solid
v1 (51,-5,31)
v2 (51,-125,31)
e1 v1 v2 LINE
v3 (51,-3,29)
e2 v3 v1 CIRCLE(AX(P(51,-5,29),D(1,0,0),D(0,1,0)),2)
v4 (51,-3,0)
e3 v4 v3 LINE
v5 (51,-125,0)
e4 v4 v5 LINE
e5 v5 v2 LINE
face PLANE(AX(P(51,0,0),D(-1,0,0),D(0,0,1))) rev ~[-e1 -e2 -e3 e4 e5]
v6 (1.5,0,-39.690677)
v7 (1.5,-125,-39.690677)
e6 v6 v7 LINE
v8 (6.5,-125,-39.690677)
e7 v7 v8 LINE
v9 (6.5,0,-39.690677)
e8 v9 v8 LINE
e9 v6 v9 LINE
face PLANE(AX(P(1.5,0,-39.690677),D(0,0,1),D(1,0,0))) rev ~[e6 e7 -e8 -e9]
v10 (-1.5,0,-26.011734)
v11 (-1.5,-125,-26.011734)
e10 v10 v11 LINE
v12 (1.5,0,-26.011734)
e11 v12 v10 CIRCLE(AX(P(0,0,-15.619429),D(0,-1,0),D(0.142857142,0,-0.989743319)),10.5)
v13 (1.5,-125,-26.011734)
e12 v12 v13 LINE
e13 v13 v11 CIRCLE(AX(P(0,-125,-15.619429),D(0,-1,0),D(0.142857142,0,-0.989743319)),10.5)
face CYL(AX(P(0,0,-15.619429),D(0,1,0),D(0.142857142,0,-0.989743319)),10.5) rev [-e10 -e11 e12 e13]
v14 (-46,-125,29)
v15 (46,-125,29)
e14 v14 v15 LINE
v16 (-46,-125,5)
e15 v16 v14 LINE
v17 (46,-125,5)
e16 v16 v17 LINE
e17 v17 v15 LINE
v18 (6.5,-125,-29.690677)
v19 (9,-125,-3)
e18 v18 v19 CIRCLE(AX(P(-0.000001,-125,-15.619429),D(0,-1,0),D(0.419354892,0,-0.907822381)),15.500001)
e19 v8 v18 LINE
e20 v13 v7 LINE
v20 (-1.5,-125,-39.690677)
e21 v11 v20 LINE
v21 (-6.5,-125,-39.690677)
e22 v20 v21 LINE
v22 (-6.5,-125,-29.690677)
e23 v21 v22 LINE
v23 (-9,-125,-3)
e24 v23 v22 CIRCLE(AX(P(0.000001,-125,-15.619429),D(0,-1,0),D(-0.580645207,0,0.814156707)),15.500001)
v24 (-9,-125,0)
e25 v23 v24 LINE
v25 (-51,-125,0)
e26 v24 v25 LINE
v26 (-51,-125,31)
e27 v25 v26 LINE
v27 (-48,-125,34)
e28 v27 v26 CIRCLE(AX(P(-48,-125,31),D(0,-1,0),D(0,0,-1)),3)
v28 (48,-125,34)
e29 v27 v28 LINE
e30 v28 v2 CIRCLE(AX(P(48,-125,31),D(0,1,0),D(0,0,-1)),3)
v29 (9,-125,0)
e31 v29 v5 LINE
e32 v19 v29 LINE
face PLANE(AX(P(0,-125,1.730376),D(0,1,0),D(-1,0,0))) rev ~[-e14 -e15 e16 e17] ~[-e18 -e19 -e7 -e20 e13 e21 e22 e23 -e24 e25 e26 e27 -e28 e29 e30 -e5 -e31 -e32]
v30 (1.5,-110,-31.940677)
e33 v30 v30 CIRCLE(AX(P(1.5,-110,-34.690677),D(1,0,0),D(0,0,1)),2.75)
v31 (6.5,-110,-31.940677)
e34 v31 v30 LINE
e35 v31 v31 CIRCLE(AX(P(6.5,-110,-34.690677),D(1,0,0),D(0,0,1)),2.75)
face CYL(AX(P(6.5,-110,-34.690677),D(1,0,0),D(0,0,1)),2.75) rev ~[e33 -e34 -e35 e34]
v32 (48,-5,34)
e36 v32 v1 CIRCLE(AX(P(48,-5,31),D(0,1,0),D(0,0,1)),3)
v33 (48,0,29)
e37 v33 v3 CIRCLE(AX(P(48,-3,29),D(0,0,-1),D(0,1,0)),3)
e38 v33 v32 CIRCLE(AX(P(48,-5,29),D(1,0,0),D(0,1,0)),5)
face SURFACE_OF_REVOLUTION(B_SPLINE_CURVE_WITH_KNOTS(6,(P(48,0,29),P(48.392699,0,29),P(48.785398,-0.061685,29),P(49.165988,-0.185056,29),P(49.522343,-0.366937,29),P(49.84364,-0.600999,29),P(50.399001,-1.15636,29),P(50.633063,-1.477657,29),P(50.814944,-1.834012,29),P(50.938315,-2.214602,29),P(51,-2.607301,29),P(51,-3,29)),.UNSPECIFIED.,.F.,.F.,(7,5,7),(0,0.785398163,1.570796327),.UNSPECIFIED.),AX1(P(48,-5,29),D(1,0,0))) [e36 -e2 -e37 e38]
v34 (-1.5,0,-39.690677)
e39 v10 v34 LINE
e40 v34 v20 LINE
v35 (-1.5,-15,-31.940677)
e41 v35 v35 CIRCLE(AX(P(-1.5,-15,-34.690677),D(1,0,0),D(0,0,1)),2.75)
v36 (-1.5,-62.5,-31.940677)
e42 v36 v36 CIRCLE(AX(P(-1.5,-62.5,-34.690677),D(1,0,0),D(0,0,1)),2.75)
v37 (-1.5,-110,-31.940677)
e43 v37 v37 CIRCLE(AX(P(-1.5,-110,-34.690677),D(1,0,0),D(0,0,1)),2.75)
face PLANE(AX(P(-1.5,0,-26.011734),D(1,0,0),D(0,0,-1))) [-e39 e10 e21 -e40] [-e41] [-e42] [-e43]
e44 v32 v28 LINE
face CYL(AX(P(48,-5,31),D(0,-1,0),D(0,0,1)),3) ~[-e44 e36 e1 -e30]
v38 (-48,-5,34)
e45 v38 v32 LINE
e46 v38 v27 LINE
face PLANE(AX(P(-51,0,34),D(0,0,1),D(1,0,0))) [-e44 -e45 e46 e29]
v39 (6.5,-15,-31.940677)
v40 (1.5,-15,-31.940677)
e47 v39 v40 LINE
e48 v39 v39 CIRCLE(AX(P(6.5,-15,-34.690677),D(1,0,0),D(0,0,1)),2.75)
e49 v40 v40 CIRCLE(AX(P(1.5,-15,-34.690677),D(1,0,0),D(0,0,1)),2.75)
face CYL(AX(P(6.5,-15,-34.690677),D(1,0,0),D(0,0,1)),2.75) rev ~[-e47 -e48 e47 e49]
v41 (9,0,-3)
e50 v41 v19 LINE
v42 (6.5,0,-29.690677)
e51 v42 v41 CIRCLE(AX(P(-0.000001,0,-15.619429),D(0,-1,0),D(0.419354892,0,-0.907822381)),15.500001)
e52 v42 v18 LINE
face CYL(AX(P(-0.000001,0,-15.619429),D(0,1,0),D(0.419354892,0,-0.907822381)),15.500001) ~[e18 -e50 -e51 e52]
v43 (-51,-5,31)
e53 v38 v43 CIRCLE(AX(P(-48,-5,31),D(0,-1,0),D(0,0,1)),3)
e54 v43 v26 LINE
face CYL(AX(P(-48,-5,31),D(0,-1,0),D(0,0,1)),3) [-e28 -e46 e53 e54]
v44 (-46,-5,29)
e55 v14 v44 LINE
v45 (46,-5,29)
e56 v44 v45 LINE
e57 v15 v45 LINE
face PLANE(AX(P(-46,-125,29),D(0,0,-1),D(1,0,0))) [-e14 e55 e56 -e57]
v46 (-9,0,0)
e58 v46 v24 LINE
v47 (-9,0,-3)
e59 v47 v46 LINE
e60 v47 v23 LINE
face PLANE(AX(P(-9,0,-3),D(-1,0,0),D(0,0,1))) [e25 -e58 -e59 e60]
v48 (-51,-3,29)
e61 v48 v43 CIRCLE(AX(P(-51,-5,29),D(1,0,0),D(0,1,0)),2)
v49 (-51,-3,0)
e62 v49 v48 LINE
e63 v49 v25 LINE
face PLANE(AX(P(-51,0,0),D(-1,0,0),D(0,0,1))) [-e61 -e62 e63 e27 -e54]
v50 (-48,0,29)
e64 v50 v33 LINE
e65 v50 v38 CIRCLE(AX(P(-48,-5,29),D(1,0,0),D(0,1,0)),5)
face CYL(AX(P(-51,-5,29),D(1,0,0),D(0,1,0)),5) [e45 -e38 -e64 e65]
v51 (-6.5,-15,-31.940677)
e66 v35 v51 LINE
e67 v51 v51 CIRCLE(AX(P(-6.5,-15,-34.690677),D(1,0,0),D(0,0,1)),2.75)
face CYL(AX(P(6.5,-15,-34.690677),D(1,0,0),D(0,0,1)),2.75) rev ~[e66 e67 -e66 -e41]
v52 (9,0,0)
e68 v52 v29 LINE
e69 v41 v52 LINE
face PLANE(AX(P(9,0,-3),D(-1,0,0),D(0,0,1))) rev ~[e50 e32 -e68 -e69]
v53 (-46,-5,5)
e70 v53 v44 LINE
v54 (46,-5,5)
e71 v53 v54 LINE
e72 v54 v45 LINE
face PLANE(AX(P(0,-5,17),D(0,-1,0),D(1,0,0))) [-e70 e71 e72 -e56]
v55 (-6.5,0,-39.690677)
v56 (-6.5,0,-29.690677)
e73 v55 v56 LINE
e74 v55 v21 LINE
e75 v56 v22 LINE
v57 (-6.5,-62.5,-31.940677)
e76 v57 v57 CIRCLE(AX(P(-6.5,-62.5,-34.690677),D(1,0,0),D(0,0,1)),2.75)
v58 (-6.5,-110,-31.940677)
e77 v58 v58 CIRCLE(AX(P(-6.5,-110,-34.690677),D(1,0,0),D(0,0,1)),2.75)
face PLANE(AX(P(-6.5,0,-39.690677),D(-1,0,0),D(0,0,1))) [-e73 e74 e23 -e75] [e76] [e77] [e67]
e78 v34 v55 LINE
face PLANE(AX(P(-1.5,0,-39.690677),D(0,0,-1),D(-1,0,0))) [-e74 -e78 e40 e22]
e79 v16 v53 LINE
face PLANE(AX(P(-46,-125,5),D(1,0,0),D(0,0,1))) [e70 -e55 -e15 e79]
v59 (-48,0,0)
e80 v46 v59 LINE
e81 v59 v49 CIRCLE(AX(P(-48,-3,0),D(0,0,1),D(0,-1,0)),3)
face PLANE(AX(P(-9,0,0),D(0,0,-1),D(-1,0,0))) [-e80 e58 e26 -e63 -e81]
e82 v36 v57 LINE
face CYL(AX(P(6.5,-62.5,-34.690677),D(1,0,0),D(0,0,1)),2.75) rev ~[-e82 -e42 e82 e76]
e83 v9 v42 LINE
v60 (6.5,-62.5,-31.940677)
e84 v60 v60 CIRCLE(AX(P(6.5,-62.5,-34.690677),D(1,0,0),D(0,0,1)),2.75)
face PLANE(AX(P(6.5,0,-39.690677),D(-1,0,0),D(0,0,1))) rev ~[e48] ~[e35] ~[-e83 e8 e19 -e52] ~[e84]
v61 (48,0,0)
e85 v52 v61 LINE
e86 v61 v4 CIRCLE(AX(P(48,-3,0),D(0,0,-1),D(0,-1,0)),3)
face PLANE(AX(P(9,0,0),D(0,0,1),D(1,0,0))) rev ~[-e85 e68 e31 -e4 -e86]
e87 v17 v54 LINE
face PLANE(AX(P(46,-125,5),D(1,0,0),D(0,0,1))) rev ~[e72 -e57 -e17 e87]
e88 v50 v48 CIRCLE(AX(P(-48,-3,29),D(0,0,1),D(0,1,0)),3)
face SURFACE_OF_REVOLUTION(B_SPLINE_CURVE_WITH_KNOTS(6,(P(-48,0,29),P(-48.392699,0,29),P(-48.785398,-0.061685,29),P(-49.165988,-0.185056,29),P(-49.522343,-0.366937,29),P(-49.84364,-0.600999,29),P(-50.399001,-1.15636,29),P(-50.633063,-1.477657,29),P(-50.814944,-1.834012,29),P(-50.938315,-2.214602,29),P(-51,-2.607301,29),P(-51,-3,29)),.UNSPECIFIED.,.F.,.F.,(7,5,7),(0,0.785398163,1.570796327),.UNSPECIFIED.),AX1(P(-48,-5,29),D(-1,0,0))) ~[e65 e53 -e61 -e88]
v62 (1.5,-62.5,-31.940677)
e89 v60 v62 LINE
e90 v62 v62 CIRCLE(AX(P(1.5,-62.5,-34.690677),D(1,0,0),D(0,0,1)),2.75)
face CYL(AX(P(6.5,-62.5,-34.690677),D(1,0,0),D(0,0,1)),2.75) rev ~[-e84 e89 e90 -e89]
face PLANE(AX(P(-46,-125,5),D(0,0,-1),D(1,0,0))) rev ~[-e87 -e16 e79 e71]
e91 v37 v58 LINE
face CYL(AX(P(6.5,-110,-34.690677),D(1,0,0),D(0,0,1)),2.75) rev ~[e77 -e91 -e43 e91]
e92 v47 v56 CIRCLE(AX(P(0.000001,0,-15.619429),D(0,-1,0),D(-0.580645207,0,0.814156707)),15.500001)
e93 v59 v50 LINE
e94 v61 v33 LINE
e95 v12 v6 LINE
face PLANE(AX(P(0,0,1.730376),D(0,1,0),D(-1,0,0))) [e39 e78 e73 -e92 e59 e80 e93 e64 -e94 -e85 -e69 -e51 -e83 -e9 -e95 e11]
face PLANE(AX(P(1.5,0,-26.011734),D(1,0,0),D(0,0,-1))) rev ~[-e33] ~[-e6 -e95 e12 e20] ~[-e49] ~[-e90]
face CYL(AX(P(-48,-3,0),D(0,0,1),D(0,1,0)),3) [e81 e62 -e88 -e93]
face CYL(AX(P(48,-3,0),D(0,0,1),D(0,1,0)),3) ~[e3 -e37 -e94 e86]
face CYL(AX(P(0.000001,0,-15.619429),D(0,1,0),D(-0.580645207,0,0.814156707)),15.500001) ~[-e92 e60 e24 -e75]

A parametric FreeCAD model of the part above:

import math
import FreeCAD as App
import Part
import Sketcher
from FreeCAD import Vector


def edges_at(feature, points):
    """Names of the edges that pass closest to the given points."""
    edges = feature.Shape.Edges
    near = lambda p: min(range(len(edges)), key=lambda i: edges[i].distToShape(Part.Vertex(*p))[0])
    return sorted({f"Edge{near(p) + 1}" for p in points})

doc = App.newDocument("Part")
body = doc.addObject("PartDesign::Body", "Body")

sketch1 = doc.addObject("Sketcher::SketchObject", "Sketch")
body.addObject(sketch1)
sketch1.AttachmentSupport = (doc.XZ_Plane, [""])
sketch1.MapMode = "FlatFace"
sketch1.addGeometry(Part.ArcOfCircle(Part.Circle(Vector(0, -15.6, 0), Vector(0, 0, 1), 10.5), math.radians(-82), math.radians(262)), False)
sketch1.addGeometry(Part.LineSegment(Vector(1.5, -26, 0), Vector(1.5, -39.7, 0)), False)
sketch1.addGeometry(Part.LineSegment(Vector(1.5, -39.7, 0), Vector(6.5, -39.7, 0)), False)
sketch1.addGeometry(Part.LineSegment(Vector(6.5, -39.7, 0), Vector(6.5, -29.7, 0)), False)
sketch1.addGeometry(Part.ArcOfCircle(Part.Circle(Vector(0, -15.6, 0), Vector(0, 0, 1), 15.5), math.radians(-65), math.radians(55)), False)
sketch1.addGeometry(Part.LineSegment(Vector(9, -3, 0), Vector(9, 0, 0)), False)
sketch1.addGeometry(Part.LineSegment(Vector(9, 0, 0), Vector(51, 0, 0)), False)
sketch1.addGeometry(Part.LineSegment(Vector(51, 0, 0), Vector(51, 34, 0)), False)
sketch1.addGeometry(Part.LineSegment(Vector(51, 34, 0), Vector(-51, 34, 0)), False)
sketch1.addGeometry(Part.LineSegment(Vector(-51, 34, 0), Vector(-51, 0, 0)), False)
sketch1.addGeometry(Part.LineSegment(Vector(-51, 0, 0), Vector(-9, 0, 0)), False)
sketch1.addGeometry(Part.LineSegment(Vector(-9, 0, 0), Vector(-9, -3, 0)), False)
sketch1.addGeometry(Part.ArcOfCircle(Part.Circle(Vector(0, -15.6, 0), Vector(0, 0, 1), 15.5), math.radians(125), math.radians(245)), False)
sketch1.addGeometry(Part.LineSegment(Vector(-6.5, -29.7, 0), Vector(-6.5, -39.7, 0)), False)
sketch1.addGeometry(Part.LineSegment(Vector(-6.5, -39.7, 0), Vector(-1.5, -39.7, 0)), False)
sketch1.addGeometry(Part.LineSegment(Vector(-1.5, -39.7, 0), Vector(-1.5, -26, 0)), False)
sketch1.addConstraint(Sketcher.Constraint("Coincident", 0, 1, 1, 1))
sketch1.addConstraint(Sketcher.Constraint("Coincident", 1, 2, 2, 1))
sketch1.addConstraint(Sketcher.Constraint("Coincident", 2, 2, 3, 1))
sketch1.addConstraint(Sketcher.Constraint("Coincident", 3, 2, 4, 1))
sketch1.addConstraint(Sketcher.Constraint("Coincident", 4, 2, 5, 1))
sketch1.addConstraint(Sketcher.Constraint("Coincident", 5, 2, 6, 1))
sketch1.addConstraint(Sketcher.Constraint("Coincident", 6, 2, 7, 1))
sketch1.addConstraint(Sketcher.Constraint("Coincident", 7, 2, 8, 1))
sketch1.addConstraint(Sketcher.Constraint("Coincident", 8, 2, 9, 1))
sketch1.addConstraint(Sketcher.Constraint("Coincident", 9, 2, 10, 1))
sketch1.addConstraint(Sketcher.Constraint("Coincident", 10, 2, 11, 1))
sketch1.addConstraint(Sketcher.Constraint("Coincident", 11, 2, 12, 1))
sketch1.addConstraint(Sketcher.Constraint("Coincident", 12, 2, 13, 1))
sketch1.addConstraint(Sketcher.Constraint("Coincident", 13, 2, 14, 1))
sketch1.addConstraint(Sketcher.Constraint("Coincident", 14, 2, 15, 1))
sketch1.addConstraint(Sketcher.Constraint("Coincident", 15, 2, 0, 2))
sketch1.addConstraint(Sketcher.Constraint("Vertical", 1))
sketch1.addConstraint(Sketcher.Constraint("Horizontal", 2))
sketch1.addConstraint(Sketcher.Constraint("Vertical", 3))
sketch1.addConstraint(Sketcher.Constraint("Vertical", 5))
sketch1.addConstraint(Sketcher.Constraint("Horizontal", 6))
sketch1.addConstraint(Sketcher.Constraint("Vertical", 7))
sketch1.addConstraint(Sketcher.Constraint("Horizontal", 8))
sketch1.addConstraint(Sketcher.Constraint("Vertical", 9))
sketch1.addConstraint(Sketcher.Constraint("Horizontal", 10))
sketch1.addConstraint(Sketcher.Constraint("Vertical", 11))
sketch1.addConstraint(Sketcher.Constraint("Vertical", 13))
sketch1.addConstraint(Sketcher.Constraint("Horizontal", 14))
sketch1.addConstraint(Sketcher.Constraint("Vertical", 15))
sketch1.addConstraint(Sketcher.Constraint("Coincident", 4, 3, 0, 3))
sketch1.addConstraint(Sketcher.Constraint("Coincident", 12, 3, 0, 3))
sketch1.addConstraint(Sketcher.Constraint("Equal", 4, 12))
sketch1.addConstraint(Sketcher.Constraint("Symmetric", 6, 2, 9, 2, -1, 1))
sketch1.addConstraint(Sketcher.Constraint("Symmetric", 5, 2, 10, 2, -2))
sketch1.addConstraint(Sketcher.Constraint("Symmetric", 3, 2, 12, 2, -2))
sketch1.addConstraint(Sketcher.Constraint("Symmetric", 1, 2, 14, 2, -2))
sketch1.addConstraint(Sketcher.Constraint("Radius", 0, 10.5))
sketch1.addConstraint(Sketcher.Constraint("Radius", 4, 15.500001))
sketch1.addConstraint(Sketcher.Constraint("DistanceX", 2, 1, 2, 2, 5.0))
sketch1.addConstraint(Sketcher.Constraint("DistanceX", 6, 1, 6, 2, 42.0))
sketch1.addConstraint(Sketcher.Constraint("DistanceX", 8, 2, 8, 1, 102.0))
sketch1.addConstraint(Sketcher.Constraint("DistanceY", 3, 1, 3, 2, 10.0))
sketch1.addConstraint(Sketcher.Constraint("DistanceY", 5, 1, 5, 2, 3.0))
sketch1.addConstraint(Sketcher.Constraint("DistanceY", 7, 1, 7, 2, 34.0))
sketch1.addConstraint(Sketcher.Constraint("DistanceX", 12, 2, 0, 1, 8.0))
pad1 = doc.addObject("PartDesign::Pad", "Pad")
body.addObject(pad1)
pad1.Profile = sketch1
pad1.Length = 125

sketch2 = doc.addObject("Sketcher::SketchObject", "Sketch001")
body.addObject(sketch2)
sketch2.AttachmentSupport = (doc.XZ_Plane, [""])
sketch2.MapMode = "FlatFace"
sketch2.AttachmentOffset = App.Placement(Vector(0, 0, 125), App.Rotation())
sketch2.addGeometry(Part.LineSegment(Vector(-46, 29, 0), Vector(-46, 5, 0)), False)
sketch2.addGeometry(Part.LineSegment(Vector(-46, 5, 0), Vector(46, 5, 0)), False)
sketch2.addGeometry(Part.LineSegment(Vector(46, 5, 0), Vector(46, 29, 0)), False)
sketch2.addGeometry(Part.LineSegment(Vector(46, 29, 0), Vector(-46, 29, 0)), False)
sketch2.addConstraint(Sketcher.Constraint("Coincident", 0, 2, 1, 1))
sketch2.addConstraint(Sketcher.Constraint("Coincident", 1, 2, 2, 1))
sketch2.addConstraint(Sketcher.Constraint("Coincident", 2, 2, 3, 1))
sketch2.addConstraint(Sketcher.Constraint("Coincident", 3, 2, 0, 1))
sketch2.addConstraint(Sketcher.Constraint("Vertical", 0))
sketch2.addConstraint(Sketcher.Constraint("Horizontal", 1))
sketch2.addConstraint(Sketcher.Constraint("Vertical", 2))
sketch2.addConstraint(Sketcher.Constraint("Horizontal", 3))
sketch2.addConstraint(Sketcher.Constraint("DistanceX", 1, 1, 1, 2, 92.0))
sketch2.addConstraint(Sketcher.Constraint("DistanceY", 0, 2, 0, 1, 24.0))
sketch2.addConstraint(Sketcher.Constraint("DistanceX", 0, 2, -1, 1, 46.0))
sketch2.addConstraint(Sketcher.Constraint("DistanceY", -1, 1, 0, 2, 5.0))
pocket1 = doc.addObject("PartDesign::Pocket", "Pocket")
body.addObject(pocket1)
pocket1.Profile = sketch2
pocket1.Length = 120
doc.recompute()

fillet = doc.addObject("PartDesign::Fillet", "Fillet")
body.addObject(fillet)
fillet.Base = (pocket1, edges_at(pocket1, [(0, 0, 34)]))
fillet.Radius = 5
doc.recompute()

fillet2 = doc.addObject("PartDesign::Fillet", "Fillet001")
body.addObject(fillet2)
fillet2.Base = (fillet, edges_at(fillet, [(51, 0, 14.5)]))
fillet2.Radius = 3
doc.recompute()

fillet3 = doc.addObject("PartDesign::Fillet", "Fillet002")
body.addObject(fillet3)
fillet3.Base = (fillet2, edges_at(fillet2, [(-51, 0, 14.5)]))
fillet3.Radius = 3

sketch3 = doc.addObject("Sketcher::SketchObject", "Sketch002")
body.addObject(sketch3)
sketch3.AttachmentSupport = (doc.YZ_Plane, [""])
sketch3.MapMode = "FlatFace"
sketch3.AttachmentOffset = App.Placement(Vector(0, 0, 6.5), App.Rotation())
sketch3.addGeometry(Part.Circle(Vector(-110, -34.7, 0), Vector(0, 0, 1), 2.8), False)
sketch3.addGeometry(Part.Circle(Vector(-62.5, -34.7, 0), Vector(0, 0, 1), 2.8), False)
sketch3.addGeometry(Part.Circle(Vector(-15, -34.7, 0), Vector(0, 0, 1), 2.8), False)
sketch3.addConstraint(Sketcher.Constraint("Equal", 0, 1))
sketch3.addConstraint(Sketcher.Constraint("Equal", 1, 2))
sketch3.addConstraint(Sketcher.Constraint("Horizontal", 0, 3, 1, 3))
sketch3.addConstraint(Sketcher.Constraint("Horizontal", 1, 3, 2, 3))
sketch3.addConstraint(Sketcher.Constraint("Diameter", 0, 5.5))
sketch3.addConstraint(Sketcher.Constraint("DistanceX", 0, 3, -1, 1, 110.0))
sketch3.addConstraint(Sketcher.Constraint("DistanceX", 2, 3, -1, 1, 15.0))
sketch3.addConstraint(Sketcher.Constraint("DistanceX", 1, 3, -1, 1, 62.5))
sketch3.addConstraint(Sketcher.Constraint("DistanceY", 0, 3, -1, 1, 34.690677))
pocket2 = doc.addObject("PartDesign::Pocket", "Pocket001")
body.addObject(pocket2)
pocket2.Profile = sketch3
pocket2.Type = "ThroughAll"

doc.recompute()
